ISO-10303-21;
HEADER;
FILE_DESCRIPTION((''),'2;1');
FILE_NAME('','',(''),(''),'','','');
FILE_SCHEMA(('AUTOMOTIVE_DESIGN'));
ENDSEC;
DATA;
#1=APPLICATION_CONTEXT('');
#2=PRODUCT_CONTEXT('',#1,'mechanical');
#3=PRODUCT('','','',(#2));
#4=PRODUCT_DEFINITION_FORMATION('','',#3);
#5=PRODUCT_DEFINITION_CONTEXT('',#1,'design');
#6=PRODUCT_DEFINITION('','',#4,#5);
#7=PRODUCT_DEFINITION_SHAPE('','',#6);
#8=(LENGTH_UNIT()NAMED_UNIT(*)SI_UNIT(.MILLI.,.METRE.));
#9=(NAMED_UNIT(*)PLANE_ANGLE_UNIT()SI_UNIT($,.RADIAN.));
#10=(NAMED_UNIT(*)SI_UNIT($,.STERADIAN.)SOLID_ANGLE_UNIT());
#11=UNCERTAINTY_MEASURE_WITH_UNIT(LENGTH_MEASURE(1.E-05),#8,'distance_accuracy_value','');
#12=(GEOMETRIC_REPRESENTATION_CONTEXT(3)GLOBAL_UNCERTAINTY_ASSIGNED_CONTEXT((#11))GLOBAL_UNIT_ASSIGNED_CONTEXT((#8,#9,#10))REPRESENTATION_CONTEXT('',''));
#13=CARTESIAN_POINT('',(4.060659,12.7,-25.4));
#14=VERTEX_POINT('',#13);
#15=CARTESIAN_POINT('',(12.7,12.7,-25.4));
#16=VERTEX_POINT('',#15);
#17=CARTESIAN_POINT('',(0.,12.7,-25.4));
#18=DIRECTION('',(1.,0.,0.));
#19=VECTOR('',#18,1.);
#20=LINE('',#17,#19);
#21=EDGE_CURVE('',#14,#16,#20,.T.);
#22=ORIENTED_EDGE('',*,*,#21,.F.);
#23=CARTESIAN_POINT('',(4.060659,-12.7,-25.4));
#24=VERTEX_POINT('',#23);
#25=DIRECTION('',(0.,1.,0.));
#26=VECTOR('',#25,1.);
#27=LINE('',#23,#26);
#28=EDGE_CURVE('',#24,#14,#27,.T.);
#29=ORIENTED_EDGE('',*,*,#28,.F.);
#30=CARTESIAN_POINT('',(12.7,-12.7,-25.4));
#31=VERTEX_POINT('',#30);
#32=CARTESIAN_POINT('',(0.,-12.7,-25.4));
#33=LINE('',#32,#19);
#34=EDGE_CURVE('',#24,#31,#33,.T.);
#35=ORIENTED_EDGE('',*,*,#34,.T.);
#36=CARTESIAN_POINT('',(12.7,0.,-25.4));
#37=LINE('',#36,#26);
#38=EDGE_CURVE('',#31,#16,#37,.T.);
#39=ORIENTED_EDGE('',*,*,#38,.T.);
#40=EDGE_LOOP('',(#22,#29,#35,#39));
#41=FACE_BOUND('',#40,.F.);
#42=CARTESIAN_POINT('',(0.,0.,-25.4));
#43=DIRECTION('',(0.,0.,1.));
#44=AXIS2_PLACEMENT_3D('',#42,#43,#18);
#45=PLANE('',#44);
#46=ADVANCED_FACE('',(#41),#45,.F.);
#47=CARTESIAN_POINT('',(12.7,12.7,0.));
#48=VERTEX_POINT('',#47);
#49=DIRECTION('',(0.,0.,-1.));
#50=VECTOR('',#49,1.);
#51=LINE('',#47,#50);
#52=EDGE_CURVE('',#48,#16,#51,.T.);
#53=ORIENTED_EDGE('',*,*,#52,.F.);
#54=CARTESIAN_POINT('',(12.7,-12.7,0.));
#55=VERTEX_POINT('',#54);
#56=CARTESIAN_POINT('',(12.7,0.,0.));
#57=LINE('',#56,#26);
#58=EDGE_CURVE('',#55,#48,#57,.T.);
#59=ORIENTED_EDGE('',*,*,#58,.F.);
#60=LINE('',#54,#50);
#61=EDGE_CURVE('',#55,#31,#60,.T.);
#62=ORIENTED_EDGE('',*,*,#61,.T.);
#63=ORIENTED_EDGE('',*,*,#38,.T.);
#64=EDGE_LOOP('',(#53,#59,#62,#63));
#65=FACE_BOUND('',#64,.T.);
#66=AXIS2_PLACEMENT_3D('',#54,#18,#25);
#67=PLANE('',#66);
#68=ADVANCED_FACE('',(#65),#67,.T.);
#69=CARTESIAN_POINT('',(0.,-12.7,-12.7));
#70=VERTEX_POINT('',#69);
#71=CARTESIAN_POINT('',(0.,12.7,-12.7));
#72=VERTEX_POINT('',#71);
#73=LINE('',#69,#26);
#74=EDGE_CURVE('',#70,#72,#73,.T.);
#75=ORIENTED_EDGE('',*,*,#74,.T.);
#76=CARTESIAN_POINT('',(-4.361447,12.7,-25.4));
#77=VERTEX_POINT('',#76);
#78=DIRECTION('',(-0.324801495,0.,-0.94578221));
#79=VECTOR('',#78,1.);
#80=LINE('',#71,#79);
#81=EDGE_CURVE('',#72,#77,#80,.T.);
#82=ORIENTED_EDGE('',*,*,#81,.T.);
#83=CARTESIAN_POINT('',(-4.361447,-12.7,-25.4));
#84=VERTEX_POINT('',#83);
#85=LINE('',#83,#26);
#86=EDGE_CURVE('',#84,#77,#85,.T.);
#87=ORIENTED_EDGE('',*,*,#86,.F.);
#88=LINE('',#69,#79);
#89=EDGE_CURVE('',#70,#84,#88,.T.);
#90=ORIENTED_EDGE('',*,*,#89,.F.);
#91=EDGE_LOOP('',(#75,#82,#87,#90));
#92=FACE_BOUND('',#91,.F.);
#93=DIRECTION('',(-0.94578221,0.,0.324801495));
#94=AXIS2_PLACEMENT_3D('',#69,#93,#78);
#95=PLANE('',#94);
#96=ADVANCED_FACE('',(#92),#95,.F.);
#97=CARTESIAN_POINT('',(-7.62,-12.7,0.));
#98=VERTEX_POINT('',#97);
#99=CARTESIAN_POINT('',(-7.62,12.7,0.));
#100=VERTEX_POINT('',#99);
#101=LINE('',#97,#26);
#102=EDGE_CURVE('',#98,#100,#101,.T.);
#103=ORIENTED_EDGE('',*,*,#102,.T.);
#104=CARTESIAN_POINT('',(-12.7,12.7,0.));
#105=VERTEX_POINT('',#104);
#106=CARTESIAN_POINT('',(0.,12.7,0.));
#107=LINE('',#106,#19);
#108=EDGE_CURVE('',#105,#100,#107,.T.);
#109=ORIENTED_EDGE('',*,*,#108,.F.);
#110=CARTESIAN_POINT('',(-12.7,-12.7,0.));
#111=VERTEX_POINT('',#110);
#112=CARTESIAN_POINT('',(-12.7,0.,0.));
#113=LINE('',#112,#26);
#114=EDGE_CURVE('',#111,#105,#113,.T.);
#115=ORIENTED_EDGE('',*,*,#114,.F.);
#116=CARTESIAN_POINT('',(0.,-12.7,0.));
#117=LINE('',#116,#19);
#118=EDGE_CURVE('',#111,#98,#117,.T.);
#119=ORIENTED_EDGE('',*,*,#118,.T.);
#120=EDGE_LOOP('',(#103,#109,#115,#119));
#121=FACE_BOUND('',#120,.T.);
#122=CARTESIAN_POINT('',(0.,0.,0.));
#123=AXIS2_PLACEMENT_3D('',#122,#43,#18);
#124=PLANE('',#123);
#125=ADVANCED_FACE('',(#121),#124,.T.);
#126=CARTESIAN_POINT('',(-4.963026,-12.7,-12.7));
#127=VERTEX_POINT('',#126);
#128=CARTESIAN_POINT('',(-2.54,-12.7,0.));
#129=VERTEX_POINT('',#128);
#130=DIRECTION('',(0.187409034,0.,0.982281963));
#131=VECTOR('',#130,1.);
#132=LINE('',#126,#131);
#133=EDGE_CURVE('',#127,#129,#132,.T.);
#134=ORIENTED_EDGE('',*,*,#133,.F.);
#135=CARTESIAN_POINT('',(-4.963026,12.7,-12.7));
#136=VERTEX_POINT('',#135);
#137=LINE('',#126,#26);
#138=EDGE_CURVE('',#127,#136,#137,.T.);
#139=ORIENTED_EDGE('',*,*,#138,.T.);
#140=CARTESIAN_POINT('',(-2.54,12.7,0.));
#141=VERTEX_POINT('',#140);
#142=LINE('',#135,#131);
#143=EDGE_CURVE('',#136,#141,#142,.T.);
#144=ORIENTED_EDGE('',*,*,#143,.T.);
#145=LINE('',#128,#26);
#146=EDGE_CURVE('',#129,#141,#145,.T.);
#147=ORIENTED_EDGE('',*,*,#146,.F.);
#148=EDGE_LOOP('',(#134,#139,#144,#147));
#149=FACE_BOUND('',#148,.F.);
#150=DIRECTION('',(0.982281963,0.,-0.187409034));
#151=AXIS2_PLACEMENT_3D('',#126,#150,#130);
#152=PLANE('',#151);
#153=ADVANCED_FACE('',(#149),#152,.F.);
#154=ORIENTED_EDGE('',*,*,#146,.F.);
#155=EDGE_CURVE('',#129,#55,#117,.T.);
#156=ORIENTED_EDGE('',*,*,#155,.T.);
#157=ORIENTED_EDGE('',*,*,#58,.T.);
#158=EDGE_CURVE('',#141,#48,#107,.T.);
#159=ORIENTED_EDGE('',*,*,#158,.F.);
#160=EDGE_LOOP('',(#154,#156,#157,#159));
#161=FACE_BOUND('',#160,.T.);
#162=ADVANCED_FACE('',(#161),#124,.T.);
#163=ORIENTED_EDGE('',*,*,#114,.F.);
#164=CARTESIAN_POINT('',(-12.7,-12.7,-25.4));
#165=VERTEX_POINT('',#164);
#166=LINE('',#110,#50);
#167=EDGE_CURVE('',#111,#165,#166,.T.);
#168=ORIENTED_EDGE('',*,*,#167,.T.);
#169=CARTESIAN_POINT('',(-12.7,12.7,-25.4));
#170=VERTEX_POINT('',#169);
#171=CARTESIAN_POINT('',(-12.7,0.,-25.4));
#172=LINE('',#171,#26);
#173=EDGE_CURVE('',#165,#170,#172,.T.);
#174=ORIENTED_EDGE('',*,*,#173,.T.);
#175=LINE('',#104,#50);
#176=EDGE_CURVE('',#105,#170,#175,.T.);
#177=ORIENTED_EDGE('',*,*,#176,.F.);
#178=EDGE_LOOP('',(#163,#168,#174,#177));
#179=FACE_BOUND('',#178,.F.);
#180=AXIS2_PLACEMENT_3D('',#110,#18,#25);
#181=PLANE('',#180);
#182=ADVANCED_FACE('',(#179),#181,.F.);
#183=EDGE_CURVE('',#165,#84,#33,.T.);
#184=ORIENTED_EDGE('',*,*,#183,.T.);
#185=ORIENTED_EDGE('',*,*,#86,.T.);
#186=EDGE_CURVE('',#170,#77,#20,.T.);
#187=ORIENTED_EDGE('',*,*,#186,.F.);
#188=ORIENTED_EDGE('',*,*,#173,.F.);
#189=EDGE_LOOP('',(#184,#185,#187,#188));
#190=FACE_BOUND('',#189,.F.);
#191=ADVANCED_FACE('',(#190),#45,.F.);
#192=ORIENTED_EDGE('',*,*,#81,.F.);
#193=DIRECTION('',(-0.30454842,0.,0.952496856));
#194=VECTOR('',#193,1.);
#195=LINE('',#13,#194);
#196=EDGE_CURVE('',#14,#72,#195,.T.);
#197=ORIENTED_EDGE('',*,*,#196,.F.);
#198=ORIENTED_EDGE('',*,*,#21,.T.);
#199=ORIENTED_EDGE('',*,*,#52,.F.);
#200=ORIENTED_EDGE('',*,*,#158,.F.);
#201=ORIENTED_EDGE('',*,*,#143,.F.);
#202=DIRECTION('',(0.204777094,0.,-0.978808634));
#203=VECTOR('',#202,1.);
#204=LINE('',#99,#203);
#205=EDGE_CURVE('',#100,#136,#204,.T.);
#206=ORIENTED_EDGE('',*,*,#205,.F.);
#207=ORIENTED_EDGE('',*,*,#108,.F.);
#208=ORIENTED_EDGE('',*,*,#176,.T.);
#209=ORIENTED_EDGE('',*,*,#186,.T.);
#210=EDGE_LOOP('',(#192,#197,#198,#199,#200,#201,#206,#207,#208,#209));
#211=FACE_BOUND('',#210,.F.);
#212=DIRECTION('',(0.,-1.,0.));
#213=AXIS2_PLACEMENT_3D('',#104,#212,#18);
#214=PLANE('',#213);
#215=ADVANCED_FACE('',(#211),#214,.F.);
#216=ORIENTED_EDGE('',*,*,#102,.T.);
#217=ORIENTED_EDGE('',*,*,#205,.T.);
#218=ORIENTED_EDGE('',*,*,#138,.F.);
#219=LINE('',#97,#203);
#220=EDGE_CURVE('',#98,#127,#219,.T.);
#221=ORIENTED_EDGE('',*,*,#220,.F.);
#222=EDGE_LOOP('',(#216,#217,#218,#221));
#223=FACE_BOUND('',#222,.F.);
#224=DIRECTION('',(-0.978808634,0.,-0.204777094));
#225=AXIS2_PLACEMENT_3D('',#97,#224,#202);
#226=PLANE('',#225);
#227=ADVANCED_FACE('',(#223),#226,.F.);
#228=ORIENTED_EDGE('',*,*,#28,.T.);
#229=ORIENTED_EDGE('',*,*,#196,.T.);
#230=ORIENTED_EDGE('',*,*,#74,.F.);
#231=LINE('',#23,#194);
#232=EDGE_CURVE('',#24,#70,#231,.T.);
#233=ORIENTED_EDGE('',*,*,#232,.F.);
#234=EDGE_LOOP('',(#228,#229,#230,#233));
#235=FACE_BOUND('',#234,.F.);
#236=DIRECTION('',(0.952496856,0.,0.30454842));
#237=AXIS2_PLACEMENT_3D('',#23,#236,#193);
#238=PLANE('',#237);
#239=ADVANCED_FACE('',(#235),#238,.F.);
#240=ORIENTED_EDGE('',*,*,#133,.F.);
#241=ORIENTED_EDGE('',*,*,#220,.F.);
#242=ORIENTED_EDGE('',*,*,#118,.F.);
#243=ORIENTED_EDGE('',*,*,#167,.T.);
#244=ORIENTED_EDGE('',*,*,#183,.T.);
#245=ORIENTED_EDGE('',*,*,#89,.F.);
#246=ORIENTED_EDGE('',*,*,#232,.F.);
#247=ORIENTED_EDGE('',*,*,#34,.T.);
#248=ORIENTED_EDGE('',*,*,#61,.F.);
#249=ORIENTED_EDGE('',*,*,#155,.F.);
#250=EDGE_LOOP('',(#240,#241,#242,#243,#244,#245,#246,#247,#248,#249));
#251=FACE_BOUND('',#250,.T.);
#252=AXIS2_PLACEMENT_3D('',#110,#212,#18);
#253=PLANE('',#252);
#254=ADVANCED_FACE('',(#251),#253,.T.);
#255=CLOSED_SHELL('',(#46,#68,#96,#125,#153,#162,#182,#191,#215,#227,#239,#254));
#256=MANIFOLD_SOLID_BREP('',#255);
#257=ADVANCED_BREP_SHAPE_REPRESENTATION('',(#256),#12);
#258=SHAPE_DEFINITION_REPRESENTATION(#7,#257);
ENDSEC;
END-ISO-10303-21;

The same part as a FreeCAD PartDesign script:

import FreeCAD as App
import Part
import Sketcher

V = App.Vector
Q = App.Units.Quantity


def add_polygon(sketch, points):
    """Adds a closed chain of lines whose ends are joined by coincident constraints."""
    first, n = sketch.GeometryCount, len(points)
    for a, b in zip(points, points[1:] + points[:1]):
        sketch.addGeometry(Part.LineSegment(App.Vector(*a, 0), App.Vector(*b, 0)), False)
    for i in range(n):
        sketch.addConstraint(Sketcher.Constraint("Coincident", first + i, 2, first + (i + 1) % n, 1))

doc = App.newDocument("Part")
params = doc.addObject("Spreadsheet::Sheet", "Params")
for row, (alias, value) in enumerate([
    ("sketch1_width", "1 in"),
    ("pad1_length", "1 in"),
    ("pocket1_length", "1 in"),
    ("sketch3_width", "0.2 in"),
    ("pocket2_length", "1 in"),
], start=1):
    params.set(f"A{row}", alias)
    params.set(f"B{row}", "=" + value)
    params.setAlias(f"B{row}", alias)

body = doc.addObject("PartDesign::Body", "Body")

sketch1 = body.newObject("Sketcher::SketchObject", "Sketch")
sketch1.AttachmentSupport = (doc.getObject("XY_Plane"), [""])
sketch1.MapMode = "FlatFace"
add_polygon(sketch1, [(-13, 13), (-13, -13), (13, -13), (13, 13)])
sketch1.addConstraint([
    Sketcher.Constraint("Vertical", 0),
    Sketcher.Constraint("Horizontal", 1),
    Sketcher.Constraint("Vertical", 2),
    Sketcher.Constraint("Horizontal", 3),
    Sketcher.Constraint("Symmetric", 0, 2, 2, 2, -1, 1),
    Sketcher.Constraint("Equal", 3, 0),
    Sketcher.Constraint("DistanceX", 1, 1, 1, 2, Q("1 in")),
])
sketch1.setExpression("Constraints[10]", "Params.sketch1_width")
pad1 = body.newObject("PartDesign::Pad", "Pad")
pad1.Profile = sketch1
pad1.setExpression("Length", "Params.pad1_length")
pad1.Reversed = True

sketch2 = body.newObject("Sketcher::SketchObject", "Sketch001")
sketch2.AttachmentSupport = (doc.getObject("XZ_Plane"), [""])
sketch2.MapMode = "FlatFace"
sketch2.AttachmentOffset = App.Placement(V(0, 0, 0.5 * 25.4), App.Rotation())
add_polygon(sketch2, [(0, -13), (-4, -25), (4, -25)])
sketch2.addConstraint([
    Sketcher.Constraint("Horizontal", 1),
    Sketcher.Constraint("PointOnObject", 2, 2, -2),
    Sketcher.Constraint("DistanceY", 0, 2, -1, 1, Q("1 in")),
    Sketcher.Constraint("DistanceY", 2, 2, -1, 1, Q("0.5 in")),
    Sketcher.Constraint("Distance", 0, 13.428039),
    Sketcher.Constraint("DistanceX", 1, 1, 1, 2, 8.422106),
])
pocket1 = body.newObject("PartDesign::Pocket", "Pocket")
pocket1.Profile = sketch2
pocket1.setExpression("Length", "Params.pocket1_length")

sketch3 = body.newObject("Sketcher::SketchObject", "Sketch002")
sketch3.AttachmentSupport = (doc.getObject("XZ_Plane"), [""])
sketch3.MapMode = "FlatFace"
sketch3.AttachmentOffset = App.Placement(V(0, 0, 0.5 * 25.4), App.Rotation())
add_polygon(sketch3, [(-3, 0), (-8, 0), (-5, -13)])
sketch3.addConstraint([
    Sketcher.Constraint("Horizontal", 0),
    Sketcher.Constraint("PointOnObject", 0, 2, -1),
    Sketcher.Constraint("DistanceX", 0, 2, 0, 1, Q("0.2 in")),
    Sketcher.Constraint("DistanceX", 0, 2, -1, 1, Q("0.3 in")),
    Sketcher.Constraint("DistanceY", 1, 2, -1, 1, Q("0.5 in")),
    Sketcher.Constraint("Distance", 1, 12.974957),
])
sketch3.setExpression("Constraints[5]", "Params.sketch3_width")
pocket2 = body.newObject("PartDesign::Pocket", "Pocket001")
pocket2.Profile = sketch3
pocket2.setExpression("Length", "Params.pocket2_length")

doc.recompute()
